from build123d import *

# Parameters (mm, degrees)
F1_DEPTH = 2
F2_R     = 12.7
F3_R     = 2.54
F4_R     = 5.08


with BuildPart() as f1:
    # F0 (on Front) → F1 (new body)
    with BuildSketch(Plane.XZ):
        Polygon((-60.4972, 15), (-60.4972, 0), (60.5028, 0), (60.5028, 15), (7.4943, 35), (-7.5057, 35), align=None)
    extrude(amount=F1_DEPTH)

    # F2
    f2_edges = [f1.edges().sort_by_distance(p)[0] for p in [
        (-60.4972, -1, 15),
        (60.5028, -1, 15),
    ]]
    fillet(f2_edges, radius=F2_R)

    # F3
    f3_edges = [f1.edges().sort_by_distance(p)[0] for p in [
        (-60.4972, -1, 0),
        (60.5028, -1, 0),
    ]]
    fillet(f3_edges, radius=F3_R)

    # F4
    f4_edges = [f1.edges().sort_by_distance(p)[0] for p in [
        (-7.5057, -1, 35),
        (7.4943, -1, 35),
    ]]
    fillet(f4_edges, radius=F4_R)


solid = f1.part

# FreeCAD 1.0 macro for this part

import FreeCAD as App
import Part
import Sketcher
from FreeCAD import Vector


def edges_at(feature, points):
    """Names of the edges that pass closest to the given points."""
    edges = feature.Shape.Edges
    near = lambda p: min(range(len(edges)), key=lambda i: edges[i].distToShape(Part.Vertex(*p))[0])
    return sorted({f"Edge{near(p) + 1}" for p in points})

doc = App.newDocument("Part")
params = doc.addObject("Spreadsheet::Sheet", "Params")
for row, (alias, value) in enumerate([
    ("sketch1_width", "121 mm"),
    ("sketch1_width2", "15 mm"),
    ("pad1_length", "2 mm"),
    ("fillet_radius", "12.7 mm"),
    ("fillet2_radius", "2.54 mm"),
    ("fillet3_radius", "5.08 mm"),
], start=1):
    params.set(f"A{row}", alias)
    params.set(f"B{row}", "=" + value)
    params.setAlias(f"B{row}", alias)

body = doc.addObject("PartDesign::Body", "Body")

# Sketch on XZ plane
sketch1 = doc.addObject("Sketcher::SketchObject", "Sketch")
body.addObject(sketch1)
sketch1.AttachmentSupport = (doc.XZ_Plane, [""])
sketch1.MapMode = "FlatFace"
sketch1.addGeometry([
    Part.LineSegment(Vector(-60, 15, 0), Vector(-60, 0, 0)),  # 0
    Part.LineSegment(Vector(-60, 0, 0), Vector(61, 0, 0)),  # 1
    Part.LineSegment(Vector(61, 0, 0), Vector(61, 15, 0)),  # 2
    Part.LineSegment(Vector(61, 15, 0), Vector(7, 35, 0)),  # 3
    Part.LineSegment(Vector(7, 35, 0), Vector(-8, 35, 0)),  # 4
    Part.LineSegment(Vector(-8, 35, 0), Vector(-60, 15, 0)),  # 5
], False)
sketch1.addConstraint([
    Sketcher.Constraint("Coincident", 0, 2, 1, 1),
    Sketcher.Constraint("Coincident", 1, 2, 2, 1),
    Sketcher.Constraint("Coincident", 2, 2, 3, 1),
    Sketcher.Constraint("Coincident", 3, 2, 4, 1),
    Sketcher.Constraint("Coincident", 4, 2, 5, 1),
    Sketcher.Constraint("Coincident", 5, 2, 0, 1),
    Sketcher.Constraint("Vertical", 0),
    Sketcher.Constraint("Horizontal", 1),
    Sketcher.Constraint("Vertical", 2),
    Sketcher.Constraint("Horizontal", 4),
    Sketcher.Constraint("PointOnObject", 0, 2, -1),
    Sketcher.Constraint("Horizontal", 2, 2, 5, 2),
    Sketcher.Constraint("Equal", 4, 0),
    Sketcher.Constraint("DistanceX", 1, 1, 1, 2, 121.0),
    Sketcher.Constraint("DistanceX", 4, 2, 4, 1, 15.0),
    Sketcher.Constraint("DistanceY", -1, 1, 3, 2, 35.0),
    Sketcher.Constraint("DistanceX", 0, 2, -1, 1, 60.4972),
    Sketcher.Constraint("DistanceX", -1, 1, 3, 2, 7.4943),
])
sketch1.setExpression("Constraints[13]", "Params.sketch1_width")
sketch1.setExpression("Constraints[14]", "Params.sketch1_width2")
pad1 = doc.addObject("PartDesign::Pad", "Pad")
body.addObject(pad1)
pad1.Profile = sketch1
pad1.setExpression("Length", "Params.pad1_length")
doc.recompute()

fillet = doc.addObject("PartDesign::Fillet", "Fillet")
body.addObject(fillet)
fillet.Base = (pad1, edges_at(pad1, [(-60.497, -1, 15), (60.503, -1, 15)]))
fillet.setExpression("Radius", "Params.fillet_radius")
doc.recompute()

fillet2 = doc.addObject("PartDesign::Fillet", "Fillet001")
body.addObject(fillet2)
fillet2.Base = (fillet, edges_at(fillet, [(-60.497, -1, 0), (60.503, -1, 0)]))
fillet2.setExpression("Radius", "Params.fillet2_radius")
doc.recompute()

fillet3 = doc.addObject("PartDesign::Fillet", "Fillet002")
body.addObject(fillet3)
fillet3.Base = (fillet2, edges_at(fillet2, [(-7.506, -1, 35), (7.494, -1, 35)]))
fillet3.setExpression("Radius", "Params.fillet3_radius")

doc.recompute()
